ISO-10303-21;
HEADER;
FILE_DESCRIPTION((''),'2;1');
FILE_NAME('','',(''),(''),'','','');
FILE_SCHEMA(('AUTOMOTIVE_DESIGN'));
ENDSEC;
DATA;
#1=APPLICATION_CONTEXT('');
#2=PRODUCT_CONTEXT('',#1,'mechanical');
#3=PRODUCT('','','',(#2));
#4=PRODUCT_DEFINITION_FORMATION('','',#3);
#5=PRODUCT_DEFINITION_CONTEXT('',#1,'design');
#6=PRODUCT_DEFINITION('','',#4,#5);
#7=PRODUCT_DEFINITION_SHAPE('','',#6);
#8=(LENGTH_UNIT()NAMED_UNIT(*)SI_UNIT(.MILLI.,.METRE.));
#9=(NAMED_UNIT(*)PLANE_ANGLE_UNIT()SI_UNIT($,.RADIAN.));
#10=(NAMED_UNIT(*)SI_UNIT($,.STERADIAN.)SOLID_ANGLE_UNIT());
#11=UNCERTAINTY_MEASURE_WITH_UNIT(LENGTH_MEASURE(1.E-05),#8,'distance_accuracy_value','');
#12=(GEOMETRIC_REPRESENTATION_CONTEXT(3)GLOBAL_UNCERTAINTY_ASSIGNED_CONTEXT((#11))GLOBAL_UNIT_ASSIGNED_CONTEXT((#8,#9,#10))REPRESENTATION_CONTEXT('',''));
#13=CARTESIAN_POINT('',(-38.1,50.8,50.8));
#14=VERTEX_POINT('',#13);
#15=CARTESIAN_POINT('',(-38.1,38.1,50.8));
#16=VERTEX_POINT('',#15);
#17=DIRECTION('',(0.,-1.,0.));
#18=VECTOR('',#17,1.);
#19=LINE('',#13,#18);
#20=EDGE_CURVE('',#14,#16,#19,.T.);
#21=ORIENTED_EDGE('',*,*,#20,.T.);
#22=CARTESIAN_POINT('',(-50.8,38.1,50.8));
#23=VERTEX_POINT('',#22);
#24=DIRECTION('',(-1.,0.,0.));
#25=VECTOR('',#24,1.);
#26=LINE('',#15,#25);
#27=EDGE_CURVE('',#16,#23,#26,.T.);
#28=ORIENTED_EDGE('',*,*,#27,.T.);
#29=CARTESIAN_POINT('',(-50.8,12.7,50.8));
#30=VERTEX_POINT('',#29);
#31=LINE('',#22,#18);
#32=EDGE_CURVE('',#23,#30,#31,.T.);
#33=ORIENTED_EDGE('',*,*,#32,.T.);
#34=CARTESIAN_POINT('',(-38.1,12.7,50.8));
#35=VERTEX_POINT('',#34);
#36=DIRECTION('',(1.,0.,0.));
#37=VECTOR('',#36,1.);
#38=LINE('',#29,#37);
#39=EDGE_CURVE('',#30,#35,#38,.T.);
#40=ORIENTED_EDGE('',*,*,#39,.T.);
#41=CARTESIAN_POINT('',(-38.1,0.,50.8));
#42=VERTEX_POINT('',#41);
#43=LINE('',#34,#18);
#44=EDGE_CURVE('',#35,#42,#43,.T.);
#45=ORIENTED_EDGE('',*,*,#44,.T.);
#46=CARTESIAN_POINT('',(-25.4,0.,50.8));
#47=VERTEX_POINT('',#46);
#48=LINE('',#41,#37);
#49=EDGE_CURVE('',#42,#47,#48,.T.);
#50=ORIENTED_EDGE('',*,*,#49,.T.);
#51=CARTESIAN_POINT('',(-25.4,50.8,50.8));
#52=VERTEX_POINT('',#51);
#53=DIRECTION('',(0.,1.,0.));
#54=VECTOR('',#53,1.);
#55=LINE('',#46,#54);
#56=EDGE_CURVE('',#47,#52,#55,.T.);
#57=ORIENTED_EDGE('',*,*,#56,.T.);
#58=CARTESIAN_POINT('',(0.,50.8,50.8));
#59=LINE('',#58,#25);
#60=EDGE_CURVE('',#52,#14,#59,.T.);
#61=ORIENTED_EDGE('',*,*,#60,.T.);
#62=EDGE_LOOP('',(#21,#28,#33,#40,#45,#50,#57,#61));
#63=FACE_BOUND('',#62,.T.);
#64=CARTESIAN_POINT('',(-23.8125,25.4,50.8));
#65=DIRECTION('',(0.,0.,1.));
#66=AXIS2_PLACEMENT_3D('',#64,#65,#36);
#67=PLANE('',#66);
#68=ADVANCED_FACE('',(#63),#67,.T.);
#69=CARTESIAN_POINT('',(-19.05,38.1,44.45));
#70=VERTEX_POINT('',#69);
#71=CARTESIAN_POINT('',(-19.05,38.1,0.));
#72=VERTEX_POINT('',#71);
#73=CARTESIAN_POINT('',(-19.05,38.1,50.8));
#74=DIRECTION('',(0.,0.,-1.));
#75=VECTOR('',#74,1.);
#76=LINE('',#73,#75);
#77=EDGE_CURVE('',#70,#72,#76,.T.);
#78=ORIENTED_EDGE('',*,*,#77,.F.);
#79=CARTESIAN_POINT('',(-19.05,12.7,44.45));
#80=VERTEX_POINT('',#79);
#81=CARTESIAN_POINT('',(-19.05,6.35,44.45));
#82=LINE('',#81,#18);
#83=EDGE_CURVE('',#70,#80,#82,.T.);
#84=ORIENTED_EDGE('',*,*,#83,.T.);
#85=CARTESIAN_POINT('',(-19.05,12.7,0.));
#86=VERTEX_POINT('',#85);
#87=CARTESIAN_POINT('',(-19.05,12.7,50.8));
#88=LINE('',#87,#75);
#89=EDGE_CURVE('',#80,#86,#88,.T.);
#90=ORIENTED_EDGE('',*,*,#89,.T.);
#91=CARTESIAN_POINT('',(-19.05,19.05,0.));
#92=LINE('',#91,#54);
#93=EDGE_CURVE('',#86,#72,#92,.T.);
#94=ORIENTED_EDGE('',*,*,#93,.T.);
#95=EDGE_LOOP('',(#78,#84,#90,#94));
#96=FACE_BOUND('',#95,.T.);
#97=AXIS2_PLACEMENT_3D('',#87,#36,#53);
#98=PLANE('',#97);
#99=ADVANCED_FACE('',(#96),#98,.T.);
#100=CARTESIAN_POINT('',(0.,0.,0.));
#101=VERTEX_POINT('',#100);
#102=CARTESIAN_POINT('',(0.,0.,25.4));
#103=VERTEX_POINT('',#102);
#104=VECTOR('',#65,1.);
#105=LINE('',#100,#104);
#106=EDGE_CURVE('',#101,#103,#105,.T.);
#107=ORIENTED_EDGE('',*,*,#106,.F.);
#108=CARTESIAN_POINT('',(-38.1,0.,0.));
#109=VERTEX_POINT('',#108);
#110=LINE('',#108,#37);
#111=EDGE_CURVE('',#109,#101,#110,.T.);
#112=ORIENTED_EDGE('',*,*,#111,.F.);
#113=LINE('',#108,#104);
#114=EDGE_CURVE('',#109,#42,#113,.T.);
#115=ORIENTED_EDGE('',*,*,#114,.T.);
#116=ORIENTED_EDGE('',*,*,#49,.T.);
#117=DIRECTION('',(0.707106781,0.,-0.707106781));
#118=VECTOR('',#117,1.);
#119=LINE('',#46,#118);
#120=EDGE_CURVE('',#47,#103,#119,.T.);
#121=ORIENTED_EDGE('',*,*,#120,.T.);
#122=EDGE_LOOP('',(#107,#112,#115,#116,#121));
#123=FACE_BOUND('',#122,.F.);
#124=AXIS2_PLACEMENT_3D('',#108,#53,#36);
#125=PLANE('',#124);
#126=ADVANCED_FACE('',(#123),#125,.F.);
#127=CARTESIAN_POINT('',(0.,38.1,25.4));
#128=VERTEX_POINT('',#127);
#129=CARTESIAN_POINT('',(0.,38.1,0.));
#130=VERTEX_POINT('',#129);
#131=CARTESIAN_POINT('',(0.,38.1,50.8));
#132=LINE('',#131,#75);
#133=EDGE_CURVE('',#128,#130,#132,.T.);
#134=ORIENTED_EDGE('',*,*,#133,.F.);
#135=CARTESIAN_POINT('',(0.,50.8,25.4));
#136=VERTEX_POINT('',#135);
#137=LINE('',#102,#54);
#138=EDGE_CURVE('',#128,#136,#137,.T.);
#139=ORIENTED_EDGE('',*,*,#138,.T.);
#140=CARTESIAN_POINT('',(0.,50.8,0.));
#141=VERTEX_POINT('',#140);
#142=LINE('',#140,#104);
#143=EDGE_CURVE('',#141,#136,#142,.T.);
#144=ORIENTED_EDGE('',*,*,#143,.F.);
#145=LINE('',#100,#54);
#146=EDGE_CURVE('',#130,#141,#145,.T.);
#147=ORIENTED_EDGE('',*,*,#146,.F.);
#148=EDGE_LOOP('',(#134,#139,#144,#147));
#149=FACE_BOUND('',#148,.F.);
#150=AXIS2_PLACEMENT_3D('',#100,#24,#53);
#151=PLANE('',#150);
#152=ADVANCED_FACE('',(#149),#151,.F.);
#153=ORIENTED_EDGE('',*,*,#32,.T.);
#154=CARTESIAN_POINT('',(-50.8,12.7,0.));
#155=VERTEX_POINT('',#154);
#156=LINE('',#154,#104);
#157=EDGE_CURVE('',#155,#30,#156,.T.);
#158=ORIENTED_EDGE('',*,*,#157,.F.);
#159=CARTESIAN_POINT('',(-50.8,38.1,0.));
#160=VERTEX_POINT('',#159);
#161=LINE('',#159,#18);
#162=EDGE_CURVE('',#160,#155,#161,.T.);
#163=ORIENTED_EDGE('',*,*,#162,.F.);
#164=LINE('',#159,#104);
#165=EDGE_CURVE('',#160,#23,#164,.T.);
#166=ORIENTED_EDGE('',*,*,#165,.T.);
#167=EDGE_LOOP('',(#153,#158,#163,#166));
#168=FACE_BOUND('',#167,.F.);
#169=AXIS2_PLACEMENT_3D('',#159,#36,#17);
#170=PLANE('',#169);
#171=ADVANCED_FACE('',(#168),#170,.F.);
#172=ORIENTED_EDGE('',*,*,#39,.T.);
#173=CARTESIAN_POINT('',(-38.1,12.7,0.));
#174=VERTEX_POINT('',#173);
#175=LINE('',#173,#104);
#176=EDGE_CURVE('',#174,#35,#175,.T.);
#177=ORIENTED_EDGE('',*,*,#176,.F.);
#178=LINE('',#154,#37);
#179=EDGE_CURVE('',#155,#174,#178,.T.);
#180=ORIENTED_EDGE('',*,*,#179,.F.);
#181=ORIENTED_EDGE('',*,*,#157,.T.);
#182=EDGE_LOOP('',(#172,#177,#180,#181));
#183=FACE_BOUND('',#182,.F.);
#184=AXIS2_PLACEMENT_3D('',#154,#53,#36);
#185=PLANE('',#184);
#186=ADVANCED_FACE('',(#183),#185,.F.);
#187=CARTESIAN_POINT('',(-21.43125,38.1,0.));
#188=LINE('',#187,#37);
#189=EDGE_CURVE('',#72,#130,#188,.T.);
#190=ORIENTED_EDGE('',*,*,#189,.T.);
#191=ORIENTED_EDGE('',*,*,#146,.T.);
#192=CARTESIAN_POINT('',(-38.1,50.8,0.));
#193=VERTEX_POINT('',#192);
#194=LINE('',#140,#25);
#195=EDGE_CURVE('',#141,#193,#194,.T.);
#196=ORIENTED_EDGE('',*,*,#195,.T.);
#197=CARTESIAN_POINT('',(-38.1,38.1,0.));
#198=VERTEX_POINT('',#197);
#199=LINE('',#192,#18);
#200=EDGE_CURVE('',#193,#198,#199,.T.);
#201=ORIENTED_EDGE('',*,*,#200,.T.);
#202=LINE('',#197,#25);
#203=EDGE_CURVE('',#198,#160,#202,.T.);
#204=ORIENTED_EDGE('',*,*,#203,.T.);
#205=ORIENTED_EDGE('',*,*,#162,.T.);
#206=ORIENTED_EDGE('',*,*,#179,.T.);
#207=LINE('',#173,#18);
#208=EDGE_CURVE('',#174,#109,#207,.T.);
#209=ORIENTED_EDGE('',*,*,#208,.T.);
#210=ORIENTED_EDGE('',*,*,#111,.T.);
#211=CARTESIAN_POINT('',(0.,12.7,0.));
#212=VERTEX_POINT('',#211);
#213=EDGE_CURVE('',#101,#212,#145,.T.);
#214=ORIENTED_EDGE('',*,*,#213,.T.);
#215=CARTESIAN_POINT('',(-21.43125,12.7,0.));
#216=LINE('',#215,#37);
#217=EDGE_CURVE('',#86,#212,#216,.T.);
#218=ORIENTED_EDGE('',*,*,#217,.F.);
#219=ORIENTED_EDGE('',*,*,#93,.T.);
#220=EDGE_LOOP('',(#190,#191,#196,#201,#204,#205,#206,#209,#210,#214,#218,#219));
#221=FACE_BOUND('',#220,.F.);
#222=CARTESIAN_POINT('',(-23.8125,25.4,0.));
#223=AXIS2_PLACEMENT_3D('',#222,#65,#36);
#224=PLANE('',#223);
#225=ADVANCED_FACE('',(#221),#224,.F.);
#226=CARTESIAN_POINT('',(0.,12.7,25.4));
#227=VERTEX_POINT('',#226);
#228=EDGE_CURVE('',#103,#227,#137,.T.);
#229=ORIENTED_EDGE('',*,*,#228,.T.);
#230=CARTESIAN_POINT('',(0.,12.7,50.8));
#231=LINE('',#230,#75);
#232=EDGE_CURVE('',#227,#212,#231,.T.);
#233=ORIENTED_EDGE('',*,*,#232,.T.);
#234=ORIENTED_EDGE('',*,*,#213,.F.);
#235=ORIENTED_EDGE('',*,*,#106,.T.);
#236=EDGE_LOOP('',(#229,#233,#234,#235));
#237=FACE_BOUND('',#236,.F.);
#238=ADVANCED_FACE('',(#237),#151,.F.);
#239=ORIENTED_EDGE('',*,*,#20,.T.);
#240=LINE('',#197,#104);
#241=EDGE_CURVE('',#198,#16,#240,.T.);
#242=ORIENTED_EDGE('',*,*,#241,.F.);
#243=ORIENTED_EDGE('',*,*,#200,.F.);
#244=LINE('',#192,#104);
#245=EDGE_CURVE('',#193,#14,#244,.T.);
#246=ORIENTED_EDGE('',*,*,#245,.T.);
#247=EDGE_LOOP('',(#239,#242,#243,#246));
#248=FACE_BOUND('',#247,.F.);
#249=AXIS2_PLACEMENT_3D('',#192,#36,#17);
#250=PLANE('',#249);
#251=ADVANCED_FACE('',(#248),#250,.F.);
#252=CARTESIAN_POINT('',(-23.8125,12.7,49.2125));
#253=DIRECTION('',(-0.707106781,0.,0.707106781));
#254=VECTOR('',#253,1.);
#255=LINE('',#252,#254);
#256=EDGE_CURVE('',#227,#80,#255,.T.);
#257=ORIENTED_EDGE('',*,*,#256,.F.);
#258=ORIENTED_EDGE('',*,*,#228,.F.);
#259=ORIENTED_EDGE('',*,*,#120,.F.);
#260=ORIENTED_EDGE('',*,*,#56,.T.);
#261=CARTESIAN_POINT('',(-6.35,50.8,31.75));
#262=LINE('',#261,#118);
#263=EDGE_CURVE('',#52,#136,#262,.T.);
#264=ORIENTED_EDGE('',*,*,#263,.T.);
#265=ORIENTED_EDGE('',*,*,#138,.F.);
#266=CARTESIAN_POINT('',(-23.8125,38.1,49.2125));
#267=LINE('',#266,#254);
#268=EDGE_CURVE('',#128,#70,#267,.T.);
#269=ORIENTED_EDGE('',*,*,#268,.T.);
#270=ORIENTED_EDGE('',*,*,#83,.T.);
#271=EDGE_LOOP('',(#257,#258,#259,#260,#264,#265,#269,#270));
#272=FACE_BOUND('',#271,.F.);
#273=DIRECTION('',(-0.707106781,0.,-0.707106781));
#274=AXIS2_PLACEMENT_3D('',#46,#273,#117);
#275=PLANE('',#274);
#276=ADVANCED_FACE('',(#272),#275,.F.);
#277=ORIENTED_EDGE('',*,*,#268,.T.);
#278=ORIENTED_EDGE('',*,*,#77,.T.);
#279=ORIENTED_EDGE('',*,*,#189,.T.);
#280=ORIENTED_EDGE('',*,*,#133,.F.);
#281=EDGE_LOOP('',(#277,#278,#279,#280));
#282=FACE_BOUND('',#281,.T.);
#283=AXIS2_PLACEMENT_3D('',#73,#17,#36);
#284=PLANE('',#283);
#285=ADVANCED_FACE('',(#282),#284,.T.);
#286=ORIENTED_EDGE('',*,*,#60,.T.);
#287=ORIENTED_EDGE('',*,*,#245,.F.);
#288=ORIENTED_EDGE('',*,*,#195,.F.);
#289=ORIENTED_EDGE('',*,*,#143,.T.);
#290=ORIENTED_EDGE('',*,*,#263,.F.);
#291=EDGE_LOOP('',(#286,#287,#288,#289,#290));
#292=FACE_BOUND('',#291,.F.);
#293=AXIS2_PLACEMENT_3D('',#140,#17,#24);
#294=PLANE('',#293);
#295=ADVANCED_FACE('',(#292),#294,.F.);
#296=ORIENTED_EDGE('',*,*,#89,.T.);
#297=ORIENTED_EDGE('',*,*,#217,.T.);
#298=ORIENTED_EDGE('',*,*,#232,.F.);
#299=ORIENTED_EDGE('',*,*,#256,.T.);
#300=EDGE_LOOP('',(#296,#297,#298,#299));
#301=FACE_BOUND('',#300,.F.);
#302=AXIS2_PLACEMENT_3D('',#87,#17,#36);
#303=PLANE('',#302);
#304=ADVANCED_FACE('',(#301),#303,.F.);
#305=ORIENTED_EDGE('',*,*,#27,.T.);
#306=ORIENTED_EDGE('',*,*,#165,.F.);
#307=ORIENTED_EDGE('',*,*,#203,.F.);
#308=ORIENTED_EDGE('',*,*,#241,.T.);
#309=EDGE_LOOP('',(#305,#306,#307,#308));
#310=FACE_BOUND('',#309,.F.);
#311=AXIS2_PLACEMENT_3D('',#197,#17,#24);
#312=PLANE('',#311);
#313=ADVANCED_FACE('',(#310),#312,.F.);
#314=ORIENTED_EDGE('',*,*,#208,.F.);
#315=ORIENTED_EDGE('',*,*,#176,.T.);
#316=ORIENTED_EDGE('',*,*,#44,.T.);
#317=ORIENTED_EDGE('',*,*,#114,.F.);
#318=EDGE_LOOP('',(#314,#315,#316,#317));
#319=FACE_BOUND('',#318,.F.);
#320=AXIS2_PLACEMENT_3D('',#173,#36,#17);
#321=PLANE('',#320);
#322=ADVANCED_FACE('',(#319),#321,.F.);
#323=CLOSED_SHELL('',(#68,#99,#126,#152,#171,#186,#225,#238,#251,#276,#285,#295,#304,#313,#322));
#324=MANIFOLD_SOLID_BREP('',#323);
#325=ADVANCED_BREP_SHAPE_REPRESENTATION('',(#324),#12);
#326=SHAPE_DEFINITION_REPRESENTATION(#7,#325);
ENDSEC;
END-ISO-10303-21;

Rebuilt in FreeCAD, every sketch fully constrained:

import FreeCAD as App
import Part
import Sketcher
from FreeCAD import Vector
Q = App.Units.Quantity

doc = App.newDocument("Part")
body = doc.addObject("PartDesign::Body", "Body")

# Sketch on XY plane
sketch1 = doc.addObject("Sketcher::SketchObject", "Sketch")
body.addObject(sketch1)
sketch1.AttachmentSupport = (doc.XY_Plane, [""])
sketch1.MapMode = "FlatFace"
sketch1.addGeometry([
    Part.LineSegment(Vector(-38, 0, 0), Vector(0, 0, 0)),  # 0
    Part.LineSegment(Vector(0, 0, 0), Vector(0, 51, 0)),  # 1
    Part.LineSegment(Vector(0, 51, 0), Vector(-38, 51, 0)),  # 2
    Part.LineSegment(Vector(-38, 51, 0), Vector(-38, 38, 0)),  # 3
    Part.LineSegment(Vector(-38, 38, 0), Vector(-51, 38, 0)),  # 4
    Part.LineSegment(Vector(-51, 38, 0), Vector(-51, 13, 0)),  # 5
    Part.LineSegment(Vector(-51, 13, 0), Vector(-38, 13, 0)),  # 6
    Part.LineSegment(Vector(-38, 13, 0), Vector(-38, 0, 0)),  # 7
], False)
sketch1.addConstraint([
    Sketcher.Constraint("Coincident", 0, 2, 1, 1),
    Sketcher.Constraint("Coincident", 1, 2, 2, 1),
    Sketcher.Constraint("Coincident", 2, 2, 3, 1),
    Sketcher.Constraint("Coincident", 3, 2, 4, 1),
    Sketcher.Constraint("Coincident", 4, 2, 5, 1),
    Sketcher.Constraint("Coincident", 5, 2, 6, 1),
    Sketcher.Constraint("Coincident", 6, 2, 7, 1),
    Sketcher.Constraint("Coincident", 7, 2, 0, 1),
    Sketcher.Constraint("Horizontal", 0),
    Sketcher.Constraint("Vertical", 1),
    Sketcher.Constraint("Horizontal", 2),
    Sketcher.Constraint("Vertical", 3),
    Sketcher.Constraint("Horizontal", 4),
    Sketcher.Constraint("Vertical", 5),
    Sketcher.Constraint("Horizontal", 6),
    Sketcher.Constraint("Vertical", 7),
    Sketcher.Constraint("Coincident", 0, 2, -1, 1),
    Sketcher.Constraint("Vertical", 3, 2, 6, 2),
    Sketcher.Constraint("Equal", 6, 3),
    Sketcher.Constraint("Equal", 3, 7),
    Sketcher.Constraint("DistanceY", 1, 1, 1, 2, Q("2 in")),
    Sketcher.Constraint("DistanceY", 5, 2, 5, 1, Q("1 in")),
    Sketcher.Constraint("DistanceX", 0, 1, 0, 2, Q("1.5 in")),
])
pad1 = doc.addObject("PartDesign::Pad", "Pad")
body.addObject(pad1)
pad1.Profile = sketch1
pad1.Length = Q("2 in")

# Sketch on XZ plane
sketch2 = doc.addObject("Sketcher::SketchObject", "Sketch001")
body.addObject(sketch2)
sketch2.AttachmentSupport = (doc.XZ_Plane, [""])
sketch2.MapMode = "FlatFace"
sketch2.addGeometry([
    Part.LineSegment(Vector(0, 51, 0), Vector(-25, 51, 0)),
    Part.LineSegment(Vector(-25, 51, 0), Vector(0, 25, 0)),
    Part.LineSegment(Vector(0, 25, 0), Vector(0, 51, 0)),
], False)
sketch2.addConstraint([
    Sketcher.Constraint("Coincident", 0, 2, 1, 1),
    Sketcher.Constraint("Coincident", 1, 2, 2, 1),
    Sketcher.Constraint("Coincident", 2, 2, 0, 1),
    Sketcher.Constraint("Horizontal", 0),
    Sketcher.Constraint("Vertical", 2),
    Sketcher.Constraint("PointOnObject", 1, 2, -2),
    Sketcher.Constraint("Equal", 0, 2),
    Sketcher.Constraint("DistanceX", 0, 2, 0, 1, Q("1 in")),
    Sketcher.Constraint("DistanceY", -1, 1, 0, 2, Q("2 in")),
])
pocket1 = doc.addObject("PartDesign::Pocket", "Pocket")
body.addObject(pocket1)
pocket1.Profile = sketch2
pocket1.Type = "ThroughAll"

# Sketch on XY plane
sketch3 = doc.addObject("Sketcher::SketchObject", "Sketch002")
body.addObject(sketch3)
sketch3.AttachmentSupport = (doc.XY_Plane, [""])
sketch3.MapMode = "FlatFace"
sketch3.AttachmentOffset = App.Placement(Vector(0, 0, 2 * 25.4), App.Rotation())
sketch3.addGeometry([
    Part.LineSegment(Vector(-19, 38, 0), Vector(-19, 13, 0)),
    Part.LineSegment(Vector(-19, 13, 0), Vector(0, 13, 0)),
    Part.LineSegment(Vector(0, 13, 0), Vector(0, 38, 0)),
    Part.LineSegment(Vector(0, 38, 0), Vector(-19, 38, 0)),
], False)
sketch3.addConstraint([
    Sketcher.Constraint("Coincident", 0, 2, 1, 1),
    Sketcher.Constraint("Coincident", 1, 2, 2, 1),
    Sketcher.Constraint("Coincident", 2, 2, 3, 1),
    Sketcher.Constraint("Coincident", 3, 2, 0, 1),
    Sketcher.Constraint("Vertical", 0),
    Sketcher.Constraint("Horizontal", 1),
    Sketcher.Constraint("Vertical", 2),
    Sketcher.Constraint("Horizontal", 3),
    Sketcher.Constraint("PointOnObject", 1, 2, -2),
    Sketcher.Constraint("DistanceY", 0, 2, 0, 1, Q("1 in")),
    Sketcher.Constraint("DistanceX", 1, 1, 1, 2, Q("0.75 in")),
    Sketcher.Constraint("DistanceY", -1, 1, 0, 2, Q("0.5 in")),
])
pocket2 = doc.addObject("PartDesign::Pocket", "Pocket001")
body.addObject(pocket2)
pocket2.Profile = sketch3
pocket2.Type = "ThroughAll"

doc.recompute()
